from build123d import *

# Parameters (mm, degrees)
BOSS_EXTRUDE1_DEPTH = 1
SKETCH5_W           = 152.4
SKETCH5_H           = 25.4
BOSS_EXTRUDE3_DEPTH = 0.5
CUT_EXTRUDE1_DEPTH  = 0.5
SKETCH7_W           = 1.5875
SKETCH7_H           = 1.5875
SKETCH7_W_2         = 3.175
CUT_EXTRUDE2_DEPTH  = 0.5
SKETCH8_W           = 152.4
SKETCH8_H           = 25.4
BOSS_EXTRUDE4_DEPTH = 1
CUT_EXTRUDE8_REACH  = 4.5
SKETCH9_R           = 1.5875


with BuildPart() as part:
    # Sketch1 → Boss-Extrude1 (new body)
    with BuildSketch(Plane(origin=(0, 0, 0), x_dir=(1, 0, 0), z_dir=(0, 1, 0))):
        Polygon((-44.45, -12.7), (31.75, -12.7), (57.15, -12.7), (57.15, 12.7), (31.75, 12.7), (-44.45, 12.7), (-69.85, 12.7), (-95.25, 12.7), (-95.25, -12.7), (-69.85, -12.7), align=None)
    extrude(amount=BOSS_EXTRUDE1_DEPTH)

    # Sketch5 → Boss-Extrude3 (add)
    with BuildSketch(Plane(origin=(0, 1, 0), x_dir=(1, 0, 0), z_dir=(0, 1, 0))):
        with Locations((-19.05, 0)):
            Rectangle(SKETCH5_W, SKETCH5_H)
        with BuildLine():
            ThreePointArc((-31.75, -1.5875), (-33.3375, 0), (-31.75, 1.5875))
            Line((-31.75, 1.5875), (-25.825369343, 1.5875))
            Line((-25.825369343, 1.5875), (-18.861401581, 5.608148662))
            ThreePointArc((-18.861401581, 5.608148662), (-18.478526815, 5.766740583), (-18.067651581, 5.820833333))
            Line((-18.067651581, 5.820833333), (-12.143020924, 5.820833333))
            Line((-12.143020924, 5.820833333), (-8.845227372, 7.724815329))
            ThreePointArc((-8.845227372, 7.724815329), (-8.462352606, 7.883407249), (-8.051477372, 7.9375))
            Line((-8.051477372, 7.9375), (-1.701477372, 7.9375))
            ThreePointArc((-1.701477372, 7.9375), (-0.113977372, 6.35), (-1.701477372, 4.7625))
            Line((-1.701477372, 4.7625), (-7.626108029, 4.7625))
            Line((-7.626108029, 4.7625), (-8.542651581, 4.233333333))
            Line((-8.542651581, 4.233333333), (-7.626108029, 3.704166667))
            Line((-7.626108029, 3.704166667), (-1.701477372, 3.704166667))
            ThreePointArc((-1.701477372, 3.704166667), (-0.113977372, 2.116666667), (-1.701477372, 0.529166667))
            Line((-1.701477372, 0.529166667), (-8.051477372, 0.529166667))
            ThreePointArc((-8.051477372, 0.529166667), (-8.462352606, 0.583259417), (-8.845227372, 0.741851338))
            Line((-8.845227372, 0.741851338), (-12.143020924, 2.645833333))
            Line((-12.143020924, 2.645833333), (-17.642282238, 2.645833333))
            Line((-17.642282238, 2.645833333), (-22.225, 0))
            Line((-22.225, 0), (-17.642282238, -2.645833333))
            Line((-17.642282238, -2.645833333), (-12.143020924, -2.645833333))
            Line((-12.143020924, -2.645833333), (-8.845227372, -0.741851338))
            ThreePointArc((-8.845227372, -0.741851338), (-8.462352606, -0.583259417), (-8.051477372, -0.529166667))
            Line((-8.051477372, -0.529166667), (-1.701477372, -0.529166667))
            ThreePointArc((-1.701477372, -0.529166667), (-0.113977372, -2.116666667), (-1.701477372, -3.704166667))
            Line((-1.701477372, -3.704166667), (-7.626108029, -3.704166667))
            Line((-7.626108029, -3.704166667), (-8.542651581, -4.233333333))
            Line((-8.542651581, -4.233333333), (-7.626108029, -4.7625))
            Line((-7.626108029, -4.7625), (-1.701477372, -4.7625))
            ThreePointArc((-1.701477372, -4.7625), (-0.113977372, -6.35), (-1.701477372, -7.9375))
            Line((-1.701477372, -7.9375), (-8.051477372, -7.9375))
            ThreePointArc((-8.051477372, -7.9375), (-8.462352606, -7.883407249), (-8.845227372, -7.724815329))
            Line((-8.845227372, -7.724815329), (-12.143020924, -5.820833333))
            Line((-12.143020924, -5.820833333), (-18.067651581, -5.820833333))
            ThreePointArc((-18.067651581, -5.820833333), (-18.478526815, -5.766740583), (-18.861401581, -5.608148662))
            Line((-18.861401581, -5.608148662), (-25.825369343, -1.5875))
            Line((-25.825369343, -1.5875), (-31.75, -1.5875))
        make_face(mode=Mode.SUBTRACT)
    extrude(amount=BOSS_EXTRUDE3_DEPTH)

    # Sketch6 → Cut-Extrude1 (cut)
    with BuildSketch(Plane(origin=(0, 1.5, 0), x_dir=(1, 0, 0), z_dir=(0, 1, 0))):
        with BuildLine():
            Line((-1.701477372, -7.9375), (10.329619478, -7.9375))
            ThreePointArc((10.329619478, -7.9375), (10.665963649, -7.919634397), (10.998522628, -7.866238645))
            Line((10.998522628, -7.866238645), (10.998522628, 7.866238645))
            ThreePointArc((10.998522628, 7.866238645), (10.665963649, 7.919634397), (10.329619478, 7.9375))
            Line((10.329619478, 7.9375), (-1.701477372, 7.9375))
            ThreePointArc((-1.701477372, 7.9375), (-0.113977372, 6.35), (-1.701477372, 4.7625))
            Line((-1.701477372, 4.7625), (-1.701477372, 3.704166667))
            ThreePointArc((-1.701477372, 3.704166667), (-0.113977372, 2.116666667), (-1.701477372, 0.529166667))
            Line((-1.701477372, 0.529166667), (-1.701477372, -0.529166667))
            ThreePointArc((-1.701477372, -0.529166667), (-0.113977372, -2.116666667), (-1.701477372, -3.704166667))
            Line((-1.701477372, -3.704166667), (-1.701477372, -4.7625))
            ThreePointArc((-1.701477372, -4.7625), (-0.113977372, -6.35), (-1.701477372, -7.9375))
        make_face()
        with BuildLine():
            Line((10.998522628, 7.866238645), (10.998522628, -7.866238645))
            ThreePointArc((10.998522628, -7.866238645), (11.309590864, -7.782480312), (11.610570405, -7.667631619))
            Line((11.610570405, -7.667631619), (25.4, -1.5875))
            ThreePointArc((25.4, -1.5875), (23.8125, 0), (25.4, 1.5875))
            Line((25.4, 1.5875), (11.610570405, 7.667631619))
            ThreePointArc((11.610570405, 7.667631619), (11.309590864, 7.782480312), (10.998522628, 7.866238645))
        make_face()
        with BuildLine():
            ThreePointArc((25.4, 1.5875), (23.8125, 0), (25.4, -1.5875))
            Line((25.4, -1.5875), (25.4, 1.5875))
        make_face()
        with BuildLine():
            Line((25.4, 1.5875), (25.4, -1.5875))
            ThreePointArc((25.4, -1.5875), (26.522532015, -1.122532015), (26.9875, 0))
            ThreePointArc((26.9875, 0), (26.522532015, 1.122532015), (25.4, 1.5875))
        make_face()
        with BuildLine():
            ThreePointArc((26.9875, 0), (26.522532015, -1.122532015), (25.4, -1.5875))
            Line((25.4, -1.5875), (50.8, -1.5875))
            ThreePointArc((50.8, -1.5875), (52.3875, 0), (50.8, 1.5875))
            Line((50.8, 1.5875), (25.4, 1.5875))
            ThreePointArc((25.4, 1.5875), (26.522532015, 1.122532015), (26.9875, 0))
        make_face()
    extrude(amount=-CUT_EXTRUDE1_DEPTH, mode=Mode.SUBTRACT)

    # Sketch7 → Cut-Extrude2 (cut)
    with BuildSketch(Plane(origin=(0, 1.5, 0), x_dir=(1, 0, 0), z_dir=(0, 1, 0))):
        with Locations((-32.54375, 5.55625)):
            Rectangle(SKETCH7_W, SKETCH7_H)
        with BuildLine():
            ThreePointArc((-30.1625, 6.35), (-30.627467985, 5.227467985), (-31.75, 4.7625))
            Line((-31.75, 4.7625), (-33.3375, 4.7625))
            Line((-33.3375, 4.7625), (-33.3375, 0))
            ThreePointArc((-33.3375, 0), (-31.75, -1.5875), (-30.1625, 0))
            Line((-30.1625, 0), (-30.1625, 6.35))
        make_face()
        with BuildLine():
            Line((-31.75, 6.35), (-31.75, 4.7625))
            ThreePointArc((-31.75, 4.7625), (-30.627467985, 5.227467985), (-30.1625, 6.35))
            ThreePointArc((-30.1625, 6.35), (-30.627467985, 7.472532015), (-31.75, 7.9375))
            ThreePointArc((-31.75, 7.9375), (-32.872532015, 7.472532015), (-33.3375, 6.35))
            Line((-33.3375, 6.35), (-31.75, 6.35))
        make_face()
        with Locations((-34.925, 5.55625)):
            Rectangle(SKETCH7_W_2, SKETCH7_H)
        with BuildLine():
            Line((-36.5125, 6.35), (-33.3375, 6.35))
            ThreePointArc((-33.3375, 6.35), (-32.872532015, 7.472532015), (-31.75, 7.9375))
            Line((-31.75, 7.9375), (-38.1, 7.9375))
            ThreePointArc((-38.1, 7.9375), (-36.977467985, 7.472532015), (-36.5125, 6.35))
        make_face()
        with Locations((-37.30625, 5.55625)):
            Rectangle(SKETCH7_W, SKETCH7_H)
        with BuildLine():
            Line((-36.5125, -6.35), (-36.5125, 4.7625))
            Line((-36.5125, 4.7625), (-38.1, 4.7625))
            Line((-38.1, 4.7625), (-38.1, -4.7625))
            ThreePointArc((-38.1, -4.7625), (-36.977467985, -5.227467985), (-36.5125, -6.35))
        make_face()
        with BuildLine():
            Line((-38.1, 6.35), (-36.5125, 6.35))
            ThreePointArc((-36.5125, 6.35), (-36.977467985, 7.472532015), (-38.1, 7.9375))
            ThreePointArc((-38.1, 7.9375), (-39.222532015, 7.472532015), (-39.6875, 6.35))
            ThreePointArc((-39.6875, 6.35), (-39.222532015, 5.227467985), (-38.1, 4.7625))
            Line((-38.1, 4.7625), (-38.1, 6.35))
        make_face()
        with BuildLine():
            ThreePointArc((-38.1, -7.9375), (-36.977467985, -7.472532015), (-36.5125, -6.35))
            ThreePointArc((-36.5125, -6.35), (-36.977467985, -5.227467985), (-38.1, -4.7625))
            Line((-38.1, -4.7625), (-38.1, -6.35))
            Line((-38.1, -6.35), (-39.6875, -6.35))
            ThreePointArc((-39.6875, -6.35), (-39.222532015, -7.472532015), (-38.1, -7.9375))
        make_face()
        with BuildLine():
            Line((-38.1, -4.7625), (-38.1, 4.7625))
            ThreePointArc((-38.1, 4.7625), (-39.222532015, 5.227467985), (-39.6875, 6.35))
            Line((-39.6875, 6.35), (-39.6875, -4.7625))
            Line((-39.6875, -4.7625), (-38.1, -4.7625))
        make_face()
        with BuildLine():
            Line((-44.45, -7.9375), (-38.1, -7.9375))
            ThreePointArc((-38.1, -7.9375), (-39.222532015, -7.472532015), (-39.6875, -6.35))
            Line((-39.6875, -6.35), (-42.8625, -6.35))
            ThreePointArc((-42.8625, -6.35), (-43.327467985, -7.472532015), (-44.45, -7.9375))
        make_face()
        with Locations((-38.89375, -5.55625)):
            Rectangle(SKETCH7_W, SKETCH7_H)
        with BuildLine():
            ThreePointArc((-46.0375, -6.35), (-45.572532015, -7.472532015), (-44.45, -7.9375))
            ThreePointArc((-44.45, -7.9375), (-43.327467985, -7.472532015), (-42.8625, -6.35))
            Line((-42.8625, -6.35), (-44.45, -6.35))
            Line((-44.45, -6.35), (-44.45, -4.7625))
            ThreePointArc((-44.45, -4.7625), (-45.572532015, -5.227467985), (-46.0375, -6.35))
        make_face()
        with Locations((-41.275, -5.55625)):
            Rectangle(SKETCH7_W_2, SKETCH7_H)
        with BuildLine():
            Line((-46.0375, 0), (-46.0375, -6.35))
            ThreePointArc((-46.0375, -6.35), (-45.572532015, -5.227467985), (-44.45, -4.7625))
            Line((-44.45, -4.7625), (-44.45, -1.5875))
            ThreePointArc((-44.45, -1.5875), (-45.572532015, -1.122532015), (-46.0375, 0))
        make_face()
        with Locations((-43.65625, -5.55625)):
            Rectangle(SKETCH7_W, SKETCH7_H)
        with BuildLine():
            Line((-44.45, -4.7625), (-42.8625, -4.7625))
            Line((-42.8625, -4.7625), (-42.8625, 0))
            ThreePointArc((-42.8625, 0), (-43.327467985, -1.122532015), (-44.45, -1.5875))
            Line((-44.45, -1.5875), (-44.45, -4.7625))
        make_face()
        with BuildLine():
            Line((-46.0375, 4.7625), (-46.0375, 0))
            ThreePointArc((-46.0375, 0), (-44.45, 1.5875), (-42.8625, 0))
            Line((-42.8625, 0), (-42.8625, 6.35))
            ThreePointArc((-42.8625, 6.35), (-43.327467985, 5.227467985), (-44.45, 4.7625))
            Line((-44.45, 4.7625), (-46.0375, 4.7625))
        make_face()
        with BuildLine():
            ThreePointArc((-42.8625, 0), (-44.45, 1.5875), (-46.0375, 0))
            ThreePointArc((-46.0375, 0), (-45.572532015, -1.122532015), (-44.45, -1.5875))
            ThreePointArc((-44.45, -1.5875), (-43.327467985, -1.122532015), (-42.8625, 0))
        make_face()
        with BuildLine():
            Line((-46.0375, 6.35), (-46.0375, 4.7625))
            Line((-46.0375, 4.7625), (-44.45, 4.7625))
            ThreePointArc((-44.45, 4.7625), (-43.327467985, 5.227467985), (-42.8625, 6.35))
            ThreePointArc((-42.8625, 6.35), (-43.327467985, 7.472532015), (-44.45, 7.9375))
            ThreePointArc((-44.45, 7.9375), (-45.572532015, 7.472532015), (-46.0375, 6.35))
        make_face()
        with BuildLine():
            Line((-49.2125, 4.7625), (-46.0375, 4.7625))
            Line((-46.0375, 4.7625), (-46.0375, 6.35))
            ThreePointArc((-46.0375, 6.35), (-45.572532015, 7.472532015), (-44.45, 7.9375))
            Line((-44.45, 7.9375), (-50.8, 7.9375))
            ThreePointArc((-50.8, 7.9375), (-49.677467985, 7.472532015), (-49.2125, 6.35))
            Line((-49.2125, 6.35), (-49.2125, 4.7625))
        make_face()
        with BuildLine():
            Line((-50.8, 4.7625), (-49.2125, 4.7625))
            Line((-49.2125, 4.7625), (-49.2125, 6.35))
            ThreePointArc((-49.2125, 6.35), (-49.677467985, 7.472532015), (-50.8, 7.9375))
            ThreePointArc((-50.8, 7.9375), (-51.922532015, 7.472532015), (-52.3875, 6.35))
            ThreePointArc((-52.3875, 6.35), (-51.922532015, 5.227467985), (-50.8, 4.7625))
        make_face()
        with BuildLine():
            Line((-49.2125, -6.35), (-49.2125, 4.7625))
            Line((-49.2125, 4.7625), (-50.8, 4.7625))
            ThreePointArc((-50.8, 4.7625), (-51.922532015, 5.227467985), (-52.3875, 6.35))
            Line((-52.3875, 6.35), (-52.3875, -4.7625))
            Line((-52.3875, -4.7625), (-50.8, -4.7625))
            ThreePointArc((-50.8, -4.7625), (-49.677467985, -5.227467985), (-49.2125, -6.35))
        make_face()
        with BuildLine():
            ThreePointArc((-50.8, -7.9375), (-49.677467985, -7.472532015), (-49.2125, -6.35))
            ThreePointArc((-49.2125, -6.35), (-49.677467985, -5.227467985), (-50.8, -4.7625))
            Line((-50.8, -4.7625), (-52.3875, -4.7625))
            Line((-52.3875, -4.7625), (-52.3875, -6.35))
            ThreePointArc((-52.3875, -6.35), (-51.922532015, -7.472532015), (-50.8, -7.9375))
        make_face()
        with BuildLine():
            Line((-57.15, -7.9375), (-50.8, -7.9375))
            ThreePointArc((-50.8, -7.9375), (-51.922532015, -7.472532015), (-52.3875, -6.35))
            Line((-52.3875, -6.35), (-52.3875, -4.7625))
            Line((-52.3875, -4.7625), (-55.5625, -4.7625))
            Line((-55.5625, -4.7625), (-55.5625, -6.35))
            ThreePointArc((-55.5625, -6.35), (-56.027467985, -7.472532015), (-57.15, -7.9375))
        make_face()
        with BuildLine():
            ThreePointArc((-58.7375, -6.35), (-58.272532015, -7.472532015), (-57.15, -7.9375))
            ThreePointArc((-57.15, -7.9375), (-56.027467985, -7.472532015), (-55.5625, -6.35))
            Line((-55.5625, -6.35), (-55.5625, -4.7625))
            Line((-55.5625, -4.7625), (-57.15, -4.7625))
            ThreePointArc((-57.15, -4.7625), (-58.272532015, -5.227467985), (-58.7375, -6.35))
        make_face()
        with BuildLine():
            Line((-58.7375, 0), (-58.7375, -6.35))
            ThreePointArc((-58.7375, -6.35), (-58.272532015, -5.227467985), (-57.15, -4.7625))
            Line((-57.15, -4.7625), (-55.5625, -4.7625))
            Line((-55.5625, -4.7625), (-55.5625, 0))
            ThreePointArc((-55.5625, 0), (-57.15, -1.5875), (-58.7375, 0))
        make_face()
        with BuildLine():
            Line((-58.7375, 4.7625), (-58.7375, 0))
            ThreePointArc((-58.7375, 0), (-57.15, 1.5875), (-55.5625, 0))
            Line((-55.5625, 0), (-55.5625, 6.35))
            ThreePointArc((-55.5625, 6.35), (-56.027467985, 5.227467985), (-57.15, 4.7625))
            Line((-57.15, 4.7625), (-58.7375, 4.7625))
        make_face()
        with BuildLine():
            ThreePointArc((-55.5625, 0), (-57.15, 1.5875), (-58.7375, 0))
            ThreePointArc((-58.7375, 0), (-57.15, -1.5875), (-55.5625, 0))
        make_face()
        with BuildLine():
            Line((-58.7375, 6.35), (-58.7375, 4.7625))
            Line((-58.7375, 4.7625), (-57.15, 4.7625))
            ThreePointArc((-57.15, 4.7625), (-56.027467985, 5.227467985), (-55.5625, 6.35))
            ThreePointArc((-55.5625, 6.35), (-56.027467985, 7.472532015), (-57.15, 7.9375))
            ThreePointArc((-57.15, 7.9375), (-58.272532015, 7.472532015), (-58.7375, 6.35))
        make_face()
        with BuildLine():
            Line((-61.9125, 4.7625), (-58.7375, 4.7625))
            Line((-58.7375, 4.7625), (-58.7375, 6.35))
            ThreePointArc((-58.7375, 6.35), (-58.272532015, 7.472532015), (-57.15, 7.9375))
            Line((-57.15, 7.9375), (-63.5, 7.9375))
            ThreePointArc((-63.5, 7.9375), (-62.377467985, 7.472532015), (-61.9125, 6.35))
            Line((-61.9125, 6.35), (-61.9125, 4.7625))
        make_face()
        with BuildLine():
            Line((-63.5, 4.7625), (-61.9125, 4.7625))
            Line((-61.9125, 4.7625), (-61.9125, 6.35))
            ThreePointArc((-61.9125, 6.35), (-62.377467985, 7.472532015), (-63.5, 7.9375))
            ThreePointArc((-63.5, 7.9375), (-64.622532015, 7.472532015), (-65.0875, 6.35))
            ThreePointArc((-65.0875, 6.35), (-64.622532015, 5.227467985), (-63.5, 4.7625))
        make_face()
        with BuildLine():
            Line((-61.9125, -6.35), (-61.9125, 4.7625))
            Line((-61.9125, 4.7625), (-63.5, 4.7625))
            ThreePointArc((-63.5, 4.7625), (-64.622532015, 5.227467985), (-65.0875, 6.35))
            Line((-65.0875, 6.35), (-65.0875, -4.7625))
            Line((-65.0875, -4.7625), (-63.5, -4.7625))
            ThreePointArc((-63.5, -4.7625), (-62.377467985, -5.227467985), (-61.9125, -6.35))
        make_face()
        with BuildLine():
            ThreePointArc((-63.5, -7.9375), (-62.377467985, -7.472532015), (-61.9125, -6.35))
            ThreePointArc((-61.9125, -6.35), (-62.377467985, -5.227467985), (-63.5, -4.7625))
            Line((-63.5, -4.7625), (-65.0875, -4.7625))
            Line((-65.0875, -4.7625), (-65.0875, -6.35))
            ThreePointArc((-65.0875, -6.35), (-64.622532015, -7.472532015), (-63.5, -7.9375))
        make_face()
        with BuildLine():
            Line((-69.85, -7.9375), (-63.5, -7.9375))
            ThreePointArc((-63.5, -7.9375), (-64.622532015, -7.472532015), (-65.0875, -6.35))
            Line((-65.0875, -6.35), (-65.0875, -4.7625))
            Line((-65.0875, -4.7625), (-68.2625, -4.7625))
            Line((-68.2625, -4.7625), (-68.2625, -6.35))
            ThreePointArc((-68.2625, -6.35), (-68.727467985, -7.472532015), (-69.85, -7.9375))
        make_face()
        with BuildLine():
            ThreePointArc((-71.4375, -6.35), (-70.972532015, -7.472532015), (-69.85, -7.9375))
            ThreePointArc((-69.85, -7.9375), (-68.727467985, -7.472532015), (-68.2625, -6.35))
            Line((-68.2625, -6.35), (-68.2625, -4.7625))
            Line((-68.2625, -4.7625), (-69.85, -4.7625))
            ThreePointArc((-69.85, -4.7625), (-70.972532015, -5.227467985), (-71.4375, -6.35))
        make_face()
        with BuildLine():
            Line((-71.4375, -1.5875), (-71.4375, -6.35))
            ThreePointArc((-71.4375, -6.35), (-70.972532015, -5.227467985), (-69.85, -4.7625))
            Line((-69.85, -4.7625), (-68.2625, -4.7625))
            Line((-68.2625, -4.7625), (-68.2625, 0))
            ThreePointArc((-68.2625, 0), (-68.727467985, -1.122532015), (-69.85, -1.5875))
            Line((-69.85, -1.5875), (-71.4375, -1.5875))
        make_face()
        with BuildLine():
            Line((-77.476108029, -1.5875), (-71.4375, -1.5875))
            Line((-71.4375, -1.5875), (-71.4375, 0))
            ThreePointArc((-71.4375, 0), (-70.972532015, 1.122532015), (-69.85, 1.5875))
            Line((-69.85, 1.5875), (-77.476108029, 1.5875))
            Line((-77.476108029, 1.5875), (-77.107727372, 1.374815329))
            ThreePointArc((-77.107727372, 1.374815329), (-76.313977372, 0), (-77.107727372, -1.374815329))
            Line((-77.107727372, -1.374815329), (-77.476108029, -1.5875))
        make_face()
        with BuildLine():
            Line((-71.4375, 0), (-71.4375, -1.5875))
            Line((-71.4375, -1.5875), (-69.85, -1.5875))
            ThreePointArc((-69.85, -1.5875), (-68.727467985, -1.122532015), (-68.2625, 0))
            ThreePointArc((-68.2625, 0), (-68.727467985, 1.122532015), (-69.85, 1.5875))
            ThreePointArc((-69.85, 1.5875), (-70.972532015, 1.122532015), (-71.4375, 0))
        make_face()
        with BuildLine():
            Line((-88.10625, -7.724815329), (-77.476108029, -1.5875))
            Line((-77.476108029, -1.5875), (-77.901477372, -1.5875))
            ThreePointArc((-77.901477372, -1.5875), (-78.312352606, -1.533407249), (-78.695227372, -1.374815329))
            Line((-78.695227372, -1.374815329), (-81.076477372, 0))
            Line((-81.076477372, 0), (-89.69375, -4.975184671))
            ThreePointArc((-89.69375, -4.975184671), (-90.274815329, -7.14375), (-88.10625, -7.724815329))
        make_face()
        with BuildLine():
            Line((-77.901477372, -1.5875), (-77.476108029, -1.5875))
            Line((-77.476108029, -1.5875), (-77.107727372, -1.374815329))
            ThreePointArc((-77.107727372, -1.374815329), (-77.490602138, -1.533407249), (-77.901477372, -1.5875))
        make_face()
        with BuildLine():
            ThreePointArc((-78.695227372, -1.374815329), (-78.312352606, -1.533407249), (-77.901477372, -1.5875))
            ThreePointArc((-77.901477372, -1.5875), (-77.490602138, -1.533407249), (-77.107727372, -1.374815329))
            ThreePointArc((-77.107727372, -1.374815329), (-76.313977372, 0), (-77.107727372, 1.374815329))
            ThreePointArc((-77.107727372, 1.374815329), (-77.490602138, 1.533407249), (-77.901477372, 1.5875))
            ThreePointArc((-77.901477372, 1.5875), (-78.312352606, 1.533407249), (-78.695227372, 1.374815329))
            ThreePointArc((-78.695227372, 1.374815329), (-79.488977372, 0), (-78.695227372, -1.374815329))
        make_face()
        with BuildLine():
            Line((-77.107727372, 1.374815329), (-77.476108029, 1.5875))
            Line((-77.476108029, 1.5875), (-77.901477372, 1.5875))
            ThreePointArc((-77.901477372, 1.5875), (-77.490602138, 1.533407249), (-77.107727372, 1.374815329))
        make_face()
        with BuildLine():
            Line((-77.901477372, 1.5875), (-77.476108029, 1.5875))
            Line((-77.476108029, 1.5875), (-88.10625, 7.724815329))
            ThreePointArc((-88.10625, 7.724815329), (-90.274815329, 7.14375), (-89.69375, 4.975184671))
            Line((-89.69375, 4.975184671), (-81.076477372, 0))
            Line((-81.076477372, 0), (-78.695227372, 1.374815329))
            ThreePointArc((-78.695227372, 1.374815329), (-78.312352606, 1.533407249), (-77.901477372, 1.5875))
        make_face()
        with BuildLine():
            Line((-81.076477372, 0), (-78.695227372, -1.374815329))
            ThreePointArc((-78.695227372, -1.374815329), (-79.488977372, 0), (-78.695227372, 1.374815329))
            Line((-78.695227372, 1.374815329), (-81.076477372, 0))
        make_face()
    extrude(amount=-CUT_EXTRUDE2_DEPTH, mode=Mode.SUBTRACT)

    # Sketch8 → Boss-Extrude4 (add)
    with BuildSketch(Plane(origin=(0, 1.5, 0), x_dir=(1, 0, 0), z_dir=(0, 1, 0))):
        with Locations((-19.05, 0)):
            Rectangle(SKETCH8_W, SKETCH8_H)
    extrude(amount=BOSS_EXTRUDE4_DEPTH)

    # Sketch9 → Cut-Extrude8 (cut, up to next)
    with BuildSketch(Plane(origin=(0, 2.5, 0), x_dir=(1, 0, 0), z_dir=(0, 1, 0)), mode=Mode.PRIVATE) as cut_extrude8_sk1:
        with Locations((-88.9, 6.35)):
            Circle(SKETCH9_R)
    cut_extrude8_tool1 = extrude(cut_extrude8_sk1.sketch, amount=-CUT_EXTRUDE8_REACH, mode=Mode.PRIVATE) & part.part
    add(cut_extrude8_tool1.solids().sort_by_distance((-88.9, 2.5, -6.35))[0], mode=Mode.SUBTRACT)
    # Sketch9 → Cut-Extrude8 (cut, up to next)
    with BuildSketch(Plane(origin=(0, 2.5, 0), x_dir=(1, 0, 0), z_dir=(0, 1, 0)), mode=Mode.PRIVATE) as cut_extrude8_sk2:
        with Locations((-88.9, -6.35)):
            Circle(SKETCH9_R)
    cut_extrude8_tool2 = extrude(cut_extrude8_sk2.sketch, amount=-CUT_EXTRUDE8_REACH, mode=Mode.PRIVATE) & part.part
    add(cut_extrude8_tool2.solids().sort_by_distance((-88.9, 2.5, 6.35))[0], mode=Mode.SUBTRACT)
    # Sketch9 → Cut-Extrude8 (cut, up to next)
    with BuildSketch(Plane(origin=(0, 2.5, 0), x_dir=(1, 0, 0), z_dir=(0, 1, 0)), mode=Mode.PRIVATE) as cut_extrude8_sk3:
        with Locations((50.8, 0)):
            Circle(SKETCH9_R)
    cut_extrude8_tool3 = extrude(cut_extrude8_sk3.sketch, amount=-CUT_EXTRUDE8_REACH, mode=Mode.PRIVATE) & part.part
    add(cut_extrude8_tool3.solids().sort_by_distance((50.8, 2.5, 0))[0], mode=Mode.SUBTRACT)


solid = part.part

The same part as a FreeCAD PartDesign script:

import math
import FreeCAD as App
import Part
import Sketcher
Q = App.Units.Quantity


def add_polygon(sketch, points):
    """Adds a closed chain of lines whose ends are joined by coincident constraints."""
    first, n = sketch.GeometryCount, len(points)
    for a, b in zip(points, points[1:] + points[:1]):
        sketch.addGeometry(Part.LineSegment(App.Vector(*a, 0), App.Vector(*b, 0)), False)
    for i in range(n):
        sketch.addConstraint(Sketcher.Constraint("Coincident", first + i, 2, first + (i + 1) % n, 1))

doc = App.newDocument("Part")
params = doc.addObject("Spreadsheet::Sheet", "Params")
for row, (alias, value) in enumerate([
    ("sketch1_width", "6 in"),
    ("sketch1_height", "1 in"),
    ("pad1_length", "1 mm"),
    ("sketch2_width", "6 in"),
    ("sketch2_height", "1 in"),
    ("sketch2_radius", "0.0625 in"),
    ("sketch2_width2", "0.25 in"),
    ("pad2_length", "0.5 mm"),
    ("sketch3_width", "1 in"),
    ("sketch3_radius", "0.0625 in"),
    ("pocket1_length", "0.5 mm"),
    ("sketch4_radius", "0.0625 in"),
    ("sketch4_width", "0.25 in"),
    ("pocket2_length", "0.5 mm"),
    ("sketch5_width", "6 in"),
    ("sketch5_height", "1 in"),
    ("pad3_length", "1 mm"),
    ("sketch6_diameter", "0.125 in"),
    ("sketch7_diameter", "0.125 in"),
    ("sketch8_diameter", "0.125 in"),
], start=1):
    params.set(f"A{row}", alias)
    params.set(f"B{row}", "=" + value)
    params.setAlias(f"B{row}", alias)

body = doc.addObject("PartDesign::Body", "Body")

sketch1 = body.newObject("Sketcher::SketchObject", "Sketch")
sketch1.AttachmentSupport = (doc.getObject("XZ_Plane"), [""])
sketch1.MapMode = "FlatFace"
add_polygon(sketch1, [(57.15, 12.7), (57.15, -12.7), (-95.25, -12.7), (-95.25, 12.7)])
sketch1.addConstraint([
    Sketcher.Constraint("Vertical", 0),
    Sketcher.Constraint("Horizontal", 1),
    Sketcher.Constraint("Vertical", 2),
    Sketcher.Constraint("Horizontal", 3),
    Sketcher.Constraint("DistanceX", 1, 2, 1, 1, Q("6 in")),
    Sketcher.Constraint("DistanceY", 0, 2, 0, 1, Q("1 in")),
    Sketcher.Constraint("DistanceY", 0, 2, -1, 1, Q("0.5 in")),
    Sketcher.Constraint("DistanceX", -1, 1, 0, 2, Q("2.25 in")),
])
sketch1.setExpression("Constraints[8]", "Params.sketch1_width")
sketch1.setExpression("Constraints[9]", "Params.sketch1_height")
pad1 = body.newObject("PartDesign::Pad", "Pad")
pad1.Profile = sketch1
pad1.setExpression("Length", "Params.pad1_length")
pad1.Reversed = True

sketch2 = body.newObject("Sketcher::SketchObject", "Sketch001")
sketch2.AttachmentSupport = (doc.getObject("XZ_Plane"), [""])
sketch2.MapMode = "FlatFace"
sketch2.AttachmentOffset = App.Placement(App.Vector(0, 0, -1), App.Rotation())
add_polygon(sketch2, [(-95.25, -12.7), (-95.25, 12.7), (57.15, 12.7), (57.15, -12.7)])
sketch2.addGeometry(Part.LineSegment(App.Vector(-25.825369, 1.5875, 0), App.Vector(-31.75, 1.5875, 0)), False)
sketch2.addGeometry(Part.ArcOfCircle(Part.Circle(App.Vector(-31.75, 0, 0), App.Vector(0, 0, 1), 1.5875), math.radians(90), math.radians(270)), False)
sketch2.addGeometry(Part.LineSegment(App.Vector(-31.75, -1.5875, 0), App.Vector(-25.825369, -1.5875, 0)), False)
sketch2.addGeometry(Part.LineSegment(App.Vector(-25.825369, -1.5875, 0), App.Vector(-18.861402, -5.608149, 0)), False)
sketch2.addGeometry(Part.ArcOfCircle(Part.Circle(App.Vector(-18.067652, -4.233333, 0), App.Vector(0, 0, 1), 1.5875), math.radians(-120), math.radians(-90)), False)
sketch2.addGeometry(Part.LineSegment(App.Vector(-18.067652, -5.820833, 0), App.Vector(-12.143021, -5.820833, 0)), False)
sketch2.addGeometry(Part.LineSegment(App.Vector(-12.143021, -5.820833, 0), App.Vector(-8.845227, -7.724815, 0)), False)
sketch2.addGeometry(Part.ArcOfCircle(Part.Circle(App.Vector(-8.051477, -6.35, 0), App.Vector(0, 0, 1), 1.5875), math.radians(-120), math.radians(-90)), False)
sketch2.addGeometry(Part.LineSegment(App.Vector(-8.051477, -7.9375, 0), App.Vector(-1.701477, -7.9375, 0)), False)
sketch2.addGeometry(Part.ArcOfCircle(Part.Circle(App.Vector(-1.701477, -6.35, 0), App.Vector(0, 0, 1), 1.5875), math.radians(-90), math.radians(90)), False)
sketch2.addGeometry(Part.LineSegment(App.Vector(-1.701477, -4.7625, 0), App.Vector(-7.626108, -4.7625, 0)), False)
sketch2.addGeometry(Part.LineSegment(App.Vector(-7.626108, -4.7625, 0), App.Vector(-8.542652, -4.233333, 0)), False)
sketch2.addGeometry(Part.LineSegment(App.Vector(-8.542652, -4.233333, 0), App.Vector(-7.626108, -3.704167, 0)), False)
sketch2.addGeometry(Part.LineSegment(App.Vector(-7.626108, -3.704167, 0), App.Vector(-1.701477, -3.704167, 0)), False)
sketch2.addGeometry(Part.ArcOfCircle(Part.Circle(App.Vector(-1.701477, -2.116667, 0), App.Vector(0, 0, 1), 1.5875), math.radians(-90), math.radians(90)), False)
sketch2.addGeometry(Part.LineSegment(App.Vector(-1.701477, -0.529167, 0), App.Vector(-8.051477, -0.529167, 0)), False)
sketch2.addGeometry(Part.ArcOfCircle(Part.Circle(App.Vector(-8.051477, -2.116667, 0), App.Vector(0, 0, 1), 1.5875), math.radians(90), math.radians(120)), False)
sketch2.addGeometry(Part.LineSegment(App.Vector(-8.845227, -0.741851, 0), App.Vector(-12.143021, -2.645833, 0)), False)
sketch2.addGeometry(Part.LineSegment(App.Vector(-12.143021, -2.645833, 0), App.Vector(-17.642282, -2.645833, 0)), False)
sketch2.addGeometry(Part.LineSegment(App.Vector(-17.642282, -2.645833, 0), App.Vector(-22.225, 0, 0)), False)
sketch2.addGeometry(Part.LineSegment(App.Vector(-22.225, 0, 0), App.Vector(-17.642282, 2.645833, 0)), False)
sketch2.addGeometry(Part.LineSegment(App.Vector(-17.642282, 2.645833, 0), App.Vector(-12.143021, 2.645833, 0)), False)
sketch2.addGeometry(Part.LineSegment(App.Vector(-12.143021, 2.645833, 0), App.Vector(-8.845227, 0.741851, 0)), False)
sketch2.addGeometry(Part.ArcOfCircle(Part.Circle(App.Vector(-8.051477, 2.116667, 0), App.Vector(0, 0, 1), 1.5875), math.radians(-120), math.radians(-90)), False)
sketch2.addGeometry(Part.LineSegment(App.Vector(-8.051477, 0.529167, 0), App.Vector(-1.701477, 0.529167, 0)), False)
sketch2.addGeometry(Part.ArcOfCircle(Part.Circle(App.Vector(-1.701477, 2.116667, 0), App.Vector(0, 0, 1), 1.5875), math.radians(-90), math.radians(90)), False)
sketch2.addGeometry(Part.LineSegment(App.Vector(-1.701477, 3.704167, 0), App.Vector(-7.626108, 3.704167, 0)), False)
sketch2.addGeometry(Part.LineSegment(App.Vector(-7.626108, 3.704167, 0), App.Vector(-8.542652, 4.233333, 0)), False)
sketch2.addGeometry(Part.LineSegment(App.Vector(-8.542652, 4.233333, 0), App.Vector(-7.626108, 4.7625, 0)), False)
sketch2.addGeometry(Part.LineSegment(App.Vector(-7.626108, 4.7625, 0), App.Vector(-1.701477, 4.7625, 0)), False)
sketch2.addGeometry(Part.ArcOfCircle(Part.Circle(App.Vector(-1.701477, 6.35, 0), App.Vector(0, 0, 1), 1.5875), math.radians(-90), math.radians(90)), False)
sketch2.addGeometry(Part.LineSegment(App.Vector(-1.701477, 7.9375, 0), App.Vector(-8.051477, 7.9375, 0)), False)
sketch2.addGeometry(Part.ArcOfCircle(Part.Circle(App.Vector(-8.051477, 6.35, 0), App.Vector(0, 0, 1), 1.5875), math.radians(90), math.radians(120)), False)
sketch2.addGeometry(Part.LineSegment(App.Vector(-8.845227, 7.724815, 0), App.Vector(-12.143021, 5.820833, 0)), False)
sketch2.addGeometry(Part.LineSegment(App.Vector(-12.143021, 5.820833, 0), App.Vector(-18.067652, 5.820833, 0)), False)
sketch2.addGeometry(Part.ArcOfCircle(Part.Circle(App.Vector(-18.067652, 4.233333, 0), App.Vector(0, 0, 1), 1.5875), math.radians(90), math.radians(120)), False)
sketch2.addGeometry(Part.LineSegment(App.Vector(-18.861402, 5.608149, 0), App.Vector(-25.825369, 1.5875, 0)), False)
sketch2.addConstraint([
    Sketcher.Constraint("Tangent", 4, 2, 5, 1),
    Sketcher.Constraint("Tangent", 5, 2, 6, 1),
    Sketcher.Constraint("Coincident", 6, 2, 7, 1),
    Sketcher.Constraint("Tangent", 7, 2, 8, 1),
    Sketcher.Constraint("Tangent", 8, 2, 9, 1),
    Sketcher.Constraint("Coincident", 9, 2, 10, 1),
    Sketcher.Constraint("Tangent", 10, 2, 11, 1),
    Sketcher.Constraint("Tangent", 11, 2, 12, 1),
    Sketcher.Constraint("Tangent", 12, 2, 13, 1),
    Sketcher.Constraint("Tangent", 13, 2, 14, 1),
    Sketcher.Constraint("Coincident", 14, 2, 15, 1),
    Sketcher.Constraint("Coincident", 15, 2, 16, 1),
    Sketcher.Constraint("Coincident", 16, 2, 17, 1),
    Sketcher.Constraint("Tangent", 17, 2, 18, 1),
    Sketcher.Constraint("Tangent", 18, 2, 19, 1),
    Sketcher.Constraint("Tangent", 19, 2, 20, 1),
    Sketcher.Constraint("Tangent", 20, 2, 21, 1),
    Sketcher.Constraint("Coincident", 21, 2, 22, 1),
    Sketcher.Constraint("Coincident", 22, 2, 23, 1),
    Sketcher.Constraint("Coincident", 23, 2, 24, 1),
    Sketcher.Constraint("Coincident", 24, 2, 25, 1),
    Sketcher.Constraint("Coincident", 25, 2, 26, 1),
    Sketcher.Constraint("Tangent", 26, 2, 27, 1),
    Sketcher.Constraint("Tangent", 27, 2, 28, 1),
    Sketcher.Constraint("Tangent", 28, 2, 29, 1),
    Sketcher.Constraint("Tangent", 29, 2, 30, 1),
    Sketcher.Constraint("Coincident", 30, 2, 31, 1),
    Sketcher.Constraint("Coincident", 31, 2, 32, 1),
    Sketcher.Constraint("Coincident", 32, 2, 33, 1),
    Sketcher.Constraint("Tangent", 33, 2, 34, 1),
    Sketcher.Constraint("Tangent", 34, 2, 35, 1),
    Sketcher.Constraint("Tangent", 35, 2, 36, 1),
    Sketcher.Constraint("Tangent", 36, 2, 37, 1),
    Sketcher.Constraint("Coincident", 37, 2, 38, 1),
    Sketcher.Constraint("Tangent", 38, 2, 39, 1),
    Sketcher.Constraint("Tangent", 39, 2, 40, 1),
    Sketcher.Constraint("Coincident", 40, 2, 4, 1),
    Sketcher.Constraint("Vertical", 0),
    Sketcher.Constraint("Horizontal", 1),
    Sketcher.Constraint("Vertical", 2),
    Sketcher.Constraint("Horizontal", 3),
    Sketcher.Constraint("Horizontal", 4),
    Sketcher.Constraint("Horizontal", 6),
    Sketcher.Constraint("Horizontal", 9),
    Sketcher.Constraint("Horizontal", 12),
    Sketcher.Constraint("Horizontal", 14),
    Sketcher.Constraint("Horizontal", 17),
    Sketcher.Constraint("Horizontal", 19),
    Sketcher.Constraint("Horizontal", 22),
    Sketcher.Constraint("Horizontal", 25),
    Sketcher.Constraint("Horizontal", 28),
    Sketcher.Constraint("Horizontal", 30),
    Sketcher.Constraint("Horizontal", 33),
    Sketcher.Constraint("Horizontal", 35),
    Sketcher.Constraint("Horizontal", 38),
    Sketcher.Constraint("Equal", 5, 8),
    Sketcher.Constraint("Equal", 8, 11),
    Sketcher.Constraint("Equal", 11, 13),
    Sketcher.Constraint("Equal", 13, 18),
    Sketcher.Constraint("Equal", 18, 20),
    Sketcher.Constraint("Equal", 20, 27),
    Sketcher.Constraint("Equal", 27, 29),
    Sketcher.Constraint("Equal", 29, 34),
    Sketcher.Constraint("Equal", 34, 36),
    Sketcher.Constraint("Equal", 36, 39),
    Sketcher.Constraint("Symmetric", 20, 3, 27, 3, -1),
    Sketcher.Constraint("Symmetric", 13, 3, 34, 3, -1),
    Sketcher.Constraint("Symmetric", 8, 3, 39, 3, -1),
    Sketcher.Constraint("Symmetric", 22, 2, 24, 2, -1),
    Sketcher.Constraint("Symmetric", 15, 2, 31, 2, -1),
    Sketcher.Constraint("Symmetric", 10, 2, 36, 2, -1),
    Sketcher.Constraint("Symmetric", 6, 2, 40, 2, -1),
    Sketcher.Constraint("PointOnObject", 23, 2, -1),
    Sketcher.Constraint("Parallel", 7, 10),
    Sketcher.Constraint("Parallel", 10, 15),
    Sketcher.Constraint("Parallel", 16, 21),
    Sketcher.Constraint("Parallel", 15, 23),
    Sketcher.Constraint("Parallel", 21, 24),
    Sketcher.Constraint("Parallel", 23, 26),
    Sketcher.Constraint("Parallel", 26, 31),
    Sketcher.Constraint("Parallel", 24, 32),
    Sketcher.Constraint("Horizontal", 8, 3, 15, 2),
    Sketcher.Constraint("Vertical", 13, 3, 18, 3),
    Sketcher.Constraint("Vertical", 11, 3, 20, 3),
    Sketcher.Constraint("Vertical", 18, 3, 29, 3),
    Sketcher.Constraint("Vertical", 14, 2, 16, 2),
    Sketcher.Constraint("Vertical", 9, 2, 21, 2),
    Sketcher.Constraint("Equal", 6, 9),
    Sketcher.Constraint("Equal", 9, 14),
    Sketcher.Constraint("DistanceX", 1, 1, 1, 2, Q("6 in")),
    Sketcher.Constraint("DistanceY", 0, 1, 0, 2, Q("1 in")),
    Sketcher.Constraint("Angle", 7, Q("-30 deg")),
    Sketcher.Constraint("Radius", 5, Q("0.0625 in")),
    Sketcher.Constraint("DistanceX", 12, 1, 12, 2, Q("0.25 in")),
    Sketcher.Constraint("DistanceY", -1, 1, 0, 2, Q("0.5 in")),
    Sketcher.Constraint("DistanceY", 13, 3, 34, 3, Q("0.5 in")),
    Sketcher.Constraint("DistanceX", 0, 2, 5, 3, Q("2.5 in")),
    Sketcher.Constraint("DistanceX", 5, 3, -1, 1, Q("1.25 in")),
    Sketcher.Constraint("DistanceY", 8, 3, 27, 3, Q("0.25 in")),
    Sketcher.Constraint("DistanceX", 23, 2, -1, 1, Q("0.875 in")),
    Sketcher.Constraint("DistanceX", 4, 2, 4, 1, Q("5.924631 mm")),
])
sketch2.setExpression("Constraints[93]", "Params.sketch2_width")
sketch2.setExpression("Constraints[94]", "Params.sketch2_height")
sketch2.setExpression("Constraints[96]", "Params.sketch2_radius")
sketch2.setExpression("Constraints[97]", "Params.sketch2_width2")
pad2 = body.newObject("PartDesign::Pad", "Pad001")
pad2.Profile = sketch2
pad2.setExpression("Length", "Params.pad2_length")
pad2.Reversed = True

sketch3 = body.newObject("Sketcher::SketchObject", "Sketch002")
sketch3.AttachmentSupport = (doc.getObject("XZ_Plane"), [""])
sketch3.MapMode = "FlatFace"
sketch3.AttachmentOffset = App.Placement(App.Vector(0, 0, -1.5), App.Rotation())
sketch3.addGeometry([
    Part.LineSegment(App.Vector(-1.701477, 3.704167, 0), App.Vector(-1.701477, 4.7625, 0)),
    Part.ArcOfCircle(Part.Circle(App.Vector(-1.701477, 6.35, 0), App.Vector(0, 0, 1), 1.5875), math.radians(-90), math.radians(90)),
    Part.LineSegment(App.Vector(-1.701477, 7.9375, 0), App.Vector(10.329619, 7.9375, 0)),
    Part.ArcOfCircle(Part.Circle(App.Vector(10.329619, 4.7625, 0), App.Vector(0, 0, 1), 3.175), math.radians(77.837903), math.radians(90)),
    Part.ArcOfCircle(Part.Circle(App.Vector(10.329619, 4.7625, 0), App.Vector(0, 0, 1), 3.175), math.radians(66.206023), math.radians(77.837903)),
    Part.LineSegment(App.Vector(11.61057, 7.667632, 0), App.Vector(25.4, 1.5875, 0)),
    Part.LineSegment(App.Vector(25.4, 1.5875, 0), App.Vector(50.8, 1.5875, 0)),
    Part.ArcOfCircle(Part.Circle(App.Vector(50.8, 0, 0), App.Vector(0, 0, 1), 1.5875), math.radians(-90), math.radians(90)),
    Part.LineSegment(App.Vector(50.8, -1.5875, 0), App.Vector(25.4, -1.5875, 0)),
    Part.LineSegment(App.Vector(25.4, -1.5875, 0), App.Vector(11.61057, -7.667632, 0)),
    Part.ArcOfCircle(Part.Circle(App.Vector(10.329619, -4.7625, 0), App.Vector(0, 0, 1), 3.175), math.radians(-77.837903), math.radians(-66.206023)),
    Part.ArcOfCircle(Part.Circle(App.Vector(10.329619, -4.7625, 0), App.Vector(0, 0, 1), 3.175), math.radians(-90), math.radians(-77.837903)),
    Part.LineSegment(App.Vector(10.329619, -7.9375, 0), App.Vector(-1.701477, -7.9375, 0)),
    Part.ArcOfCircle(Part.Circle(App.Vector(-1.701477, -6.35, 0), App.Vector(0, 0, 1), 1.5875), math.radians(-90), math.radians(90)),
    Part.LineSegment(App.Vector(-1.701477, -4.7625, 0), App.Vector(-1.701477, -3.704167, 0)),
    Part.ArcOfCircle(Part.Circle(App.Vector(-1.701477, -2.116667, 0), App.Vector(0, 0, 1), 1.5875), math.radians(-90), math.radians(90)),
    Part.LineSegment(App.Vector(-1.701477, -0.529167, 0), App.Vector(-1.701477, 0.529167, 0)),
    Part.ArcOfCircle(Part.Circle(App.Vector(-1.701477, 2.116667, 0), App.Vector(0, 0, 1), 1.5875), math.radians(-90), math.radians(90)),
], False)
sketch3.addConstraint([
    Sketcher.Constraint("Coincident", 0, 2, 1, 1),
    Sketcher.Constraint("Tangent", 1, 2, 2, 1),
    Sketcher.Constraint("Tangent", 2, 2, 3, 2),
    Sketcher.Constraint("Tangent", 3, 1, 4, 2),
    Sketcher.Constraint("Tangent", 4, 1, 5, 1),
    Sketcher.Constraint("Coincident", 5, 2, 6, 1),
    Sketcher.Constraint("Tangent", 6, 2, 7, 2),
    Sketcher.Constraint("Tangent", 7, 1, 8, 1),
    Sketcher.Constraint("Coincident", 8, 2, 9, 1),
    Sketcher.Constraint("Tangent", 9, 2, 10, 2),
    Sketcher.Constraint("Tangent", 10, 1, 11, 2),
    Sketcher.Constraint("Tangent", 11, 1, 12, 1),
    Sketcher.Constraint("Tangent", 12, 2, 13, 1),
    Sketcher.Constraint("Coincident", 13, 2, 14, 1),
    Sketcher.Constraint("Coincident", 14, 2, 15, 1),
    Sketcher.Constraint("Coincident", 15, 2, 16, 1),
    Sketcher.Constraint("Coincident", 16, 2, 17, 1),
    Sketcher.Constraint("Coincident", 17, 2, 0, 1),
    Sketcher.Constraint("Vertical", 0),
    Sketcher.Constraint("Horizontal", 2),
    Sketcher.Constraint("Horizontal", 6),
    Sketcher.Constraint("Horizontal", 8),
    Sketcher.Constraint("Horizontal", 12),
    Sketcher.Constraint("Vertical", 14),
    Sketcher.Constraint("Vertical", 16),
    Sketcher.Constraint("Equal", 3, 4),
    Sketcher.Constraint("Equal", 1, 7),
    Sketcher.Constraint("Equal", 4, 10),
    Sketcher.Constraint("Equal", 10, 11),
    Sketcher.Constraint("Equal", 7, 13),
    Sketcher.Constraint("Equal", 13, 15),
    Sketcher.Constraint("Equal", 15, 17),
    Sketcher.Constraint("Symmetric", 3, 3, 10, 3, -1),
    Sketcher.Constraint("Symmetric", 15, 3, 17, 3, -1),
    Sketcher.Constraint("Symmetric", 5, 2, 8, 2, -1),
    Sketcher.Constraint("Horizontal", 4, 3, 0, 2),
    Sketcher.Constraint("Vertical", 1, 3, 13, 3),
    Sketcher.Constraint("Vertical", 13, 3, 15, 3),
    Sketcher.Constraint("Vertical", 17, 3, 0, 2),
    Sketcher.Constraint("Vertical", 3, 1, 10, 1),
    Sketcher.Constraint("Vertical", 12, 2, 13, 2),
    Sketcher.Constraint("Vertical", 14, 2, 15, 2),
    Sketcher.Constraint("Equal", 14, 16),
    Sketcher.Constraint("DistanceX", 6, 1, 6, 2, Q("1 in")),
    Sketcher.Constraint("DistanceX", -1, 1, 7, 3, Q("2 in")),
    Sketcher.Constraint("Radius", 1, Q("0.0625 in")),
    Sketcher.Constraint("DistanceY", 13, 3, 1, 3, Q("0.5 in")),
    Sketcher.Constraint("Distance", 5, Q("15.070381 mm")),
    Sketcher.Constraint("DistanceX", 2, 1, 2, 2, Q("12.031097 mm")),
    Sketcher.Constraint("DistanceY", -1, 1, 3, 1, Q("7.866239 mm")),
])
sketch3.setExpression("Constraints[43]", "Params.sketch3_width")
sketch3.setExpression("Constraints[45]", "Params.sketch3_radius")
pocket1 = body.newObject("PartDesign::Pocket", "Pocket")
pocket1.Profile = sketch3
pocket1.setExpression("Length", "Params.pocket1_length")
pocket1.Reversed = True

sketch4 = body.newObject("Sketcher::SketchObject", "Sketch003")
sketch4.AttachmentSupport = (doc.getObject("XZ_Plane"), [""])
sketch4.MapMode = "FlatFace"
sketch4.AttachmentOffset = App.Placement(App.Vector(0, 0, -1.5), App.Rotation())
sketch4.addGeometry([
    Part.LineSegment(App.Vector(-89.69375, -4.975185, 0), App.Vector(-81.076477, 0, 0)),
    Part.LineSegment(App.Vector(-81.076477, 0, 0), App.Vector(-89.69375, 4.975185, 0)),
    Part.ArcOfCircle(Part.Circle(App.Vector(-88.9, 6.35, 0), App.Vector(0, 0, 1), 1.5875), math.radians(60), math.radians(240)),
    Part.LineSegment(App.Vector(-88.10625, 7.724815, 0), App.Vector(-77.476108, 1.5875, 0)),
    Part.LineSegment(App.Vector(-77.476108, 1.5875, 0), App.Vector(-71.4375, 1.5875, 0)),
    Part.LineSegment(App.Vector(-71.4375, 1.5875, 0), App.Vector(-71.4375, 6.35, 0)),
    Part.ArcOfCircle(Part.Circle(App.Vector(-69.85, 6.35, 0), App.Vector(0, 0, 1), 1.5875), math.radians(90), math.radians(180)),
    Part.LineSegment(App.Vector(-69.85, 7.9375, 0), App.Vector(-63.5, 7.9375, 0)),
    Part.ArcOfCircle(Part.Circle(App.Vector(-63.5, 6.35, 0), App.Vector(0, 0, 1), 1.5875), math.radians(0), math.radians(90)),
    Part.LineSegment(App.Vector(-61.9125, 6.35, 0), App.Vector(-61.9125, -4.7625, 0)),
    Part.LineSegment(App.Vector(-61.9125, -4.7625, 0), App.Vector(-58.7375, -4.7625, 0)),
    Part.LineSegment(App.Vector(-58.7375, -4.7625, 0), App.Vector(-58.7375, 6.35, 0)),
    Part.ArcOfCircle(Part.Circle(App.Vector(-57.15, 6.35, 0), App.Vector(0, 0, 1), 1.5875), math.radians(90), math.radians(180)),
    Part.LineSegment(App.Vector(-57.15, 7.9375, 0), App.Vector(-50.8, 7.9375, 0)),
    Part.ArcOfCircle(Part.Circle(App.Vector(-50.8, 6.35, 0), App.Vector(0, 0, 1), 1.5875), math.radians(0), math.radians(90)),
    Part.LineSegment(App.Vector(-49.2125, 6.35, 0), App.Vector(-49.2125, -4.7625, 0)),
    Part.LineSegment(App.Vector(-49.2125, -4.7625, 0), App.Vector(-46.0375, -4.7625, 0)),
    Part.LineSegment(App.Vector(-46.0375, -4.7625, 0), App.Vector(-46.0375, 6.35, 0)),
    Part.ArcOfCircle(Part.Circle(App.Vector(-44.45, 6.35, 0), App.Vector(0, 0, 1), 1.5875), math.radians(90), math.radians(180)),
    Part.LineSegment(App.Vector(-44.45, 7.9375, 0), App.Vector(-38.1, 7.9375, 0)),
    Part.ArcOfCircle(Part.Circle(App.Vector(-38.1, 6.35, 0), App.Vector(0, 0, 1), 1.5875), math.radians(0), math.radians(90)),
    Part.LineSegment(App.Vector(-36.5125, 6.35, 0), App.Vector(-36.5125, -4.7625, 0)),
    Part.LineSegment(App.Vector(-36.5125, -4.7625, 0), App.Vector(-33.3375, -4.7625, 0)),
    Part.LineSegment(App.Vector(-33.3375, -4.7625, 0), App.Vector(-33.3375, 0, 0)),
    Part.ArcOfCircle(Part.Circle(App.Vector(-31.75, 0, 0), App.Vector(0, 0, 1), 1.5875), math.radians(0), math.radians(180)),
    Part.LineSegment(App.Vector(-30.1625, 0, 0), App.Vector(-30.1625, -6.35, 0)),
    Part.ArcOfCircle(Part.Circle(App.Vector(-31.75, -6.35, 0), App.Vector(0, 0, 1), 1.5875), math.radians(-90), math.radians(0)),
    Part.LineSegment(App.Vector(-31.75, -7.9375, 0), App.Vector(-38.1, -7.9375, 0)),
    Part.ArcOfCircle(Part.Circle(App.Vector(-38.1, -6.35, 0), App.Vector(0, 0, 1), 1.5875), math.radians(180), math.radians(270)),
    Part.LineSegment(App.Vector(-39.6875, -6.35, 0), App.Vector(-39.6875, 4.7625, 0)),
    Part.LineSegment(App.Vector(-39.6875, 4.7625, 0), App.Vector(-42.8625, 4.7625, 0)),
    Part.LineSegment(App.Vector(-42.8625, 4.7625, 0), App.Vector(-42.8625, -6.35, 0)),
    Part.ArcOfCircle(Part.Circle(App.Vector(-44.45, -6.35, 0), App.Vector(0, 0, 1), 1.5875), math.radians(-90), math.radians(0)),
    Part.LineSegment(App.Vector(-44.45, -7.9375, 0), App.Vector(-50.8, -7.9375, 0)),
    Part.ArcOfCircle(Part.Circle(App.Vector(-50.8, -6.35, 0), App.Vector(0, 0, 1), 1.5875), math.radians(180), math.radians(270)),
    Part.LineSegment(App.Vector(-52.3875, -6.35, 0), App.Vector(-52.3875, 4.7625, 0)),
    Part.LineSegment(App.Vector(-52.3875, 4.7625, 0), App.Vector(-55.5625, 4.7625, 0)),
    Part.LineSegment(App.Vector(-55.5625, 4.7625, 0), App.Vector(-55.5625, -6.35, 0)),
    Part.ArcOfCircle(Part.Circle(App.Vector(-57.15, -6.35, 0), App.Vector(0, 0, 1), 1.5875), math.radians(-90), math.radians(0)),
    Part.LineSegment(App.Vector(-57.15, -7.9375, 0), App.Vector(-63.5, -7.9375, 0)),
    Part.ArcOfCircle(Part.Circle(App.Vector(-63.5, -6.35, 0), App.Vector(0, 0, 1), 1.5875), math.radians(180), math.radians(270)),
    Part.LineSegment(App.Vector(-65.0875, -6.35, 0), App.Vector(-65.0875, 4.7625, 0)),
    Part.LineSegment(App.Vector(-65.0875, 4.7625, 0), App.Vector(-68.2625, 4.7625, 0)),
    Part.LineSegment(App.Vector(-68.2625, 4.7625, 0), App.Vector(-68.2625, 0, 0)),
    Part.ArcOfCircle(Part.Circle(App.Vector(-69.85, 0, 0), App.Vector(0, 0, 1), 1.5875), math.radians(-90), math.radians(0)),
    Part.LineSegment(App.Vector(-69.85, -1.5875, 0), App.Vector(-77.476108, -1.5875, 0)),
    Part.LineSegment(App.Vector(-77.476108, -1.5875, 0), App.Vector(-88.10625, -7.724815, 0)),
    Part.ArcOfCircle(Part.Circle(App.Vector(-88.9, -6.35, 0), App.Vector(0, 0, 1), 1.5875), math.radians(120), math.radians(300)),
], False)
sketch4.addConstraint([
    Sketcher.Constraint("Coincident", 0, 2, 1, 1),
    Sketcher.Constraint("Tangent", 1, 2, 2, 2),
    Sketcher.Constraint("Tangent", 2, 1, 3, 1),
    Sketcher.Constraint("Coincident", 3, 2, 4, 1),
    Sketcher.Constraint("Coincident", 4, 2, 5, 1),
    Sketcher.Constraint("Tangent", 5, 2, 6, 2),
    Sketcher.Constraint("Tangent", 6, 1, 7, 1),
    Sketcher.Constraint("Tangent", 7, 2, 8, 2),
    Sketcher.Constraint("Tangent", 8, 1, 9, 1),
    Sketcher.Constraint("Coincident", 9, 2, 10, 1),
    Sketcher.Constraint("Coincident", 10, 2, 11, 1),
    Sketcher.Constraint("Tangent", 11, 2, 12, 2),
    Sketcher.Constraint("Tangent", 12, 1, 13, 1),
    Sketcher.Constraint("Tangent", 13, 2, 14, 2),
    Sketcher.Constraint("Tangent", 14, 1, 15, 1),
    Sketcher.Constraint("Coincident", 15, 2, 16, 1),
    Sketcher.Constraint("Coincident", 16, 2, 17, 1),
    Sketcher.Constraint("Tangent", 17, 2, 18, 2),
    Sketcher.Constraint("Tangent", 18, 1, 19, 1),
    Sketcher.Constraint("Tangent", 19, 2, 20, 2),
    Sketcher.Constraint("Tangent", 20, 1, 21, 1),
    Sketcher.Constraint("Coincident", 21, 2, 22, 1),
    Sketcher.Constraint("Coincident", 22, 2, 23, 1),
    Sketcher.Constraint("Tangent", 23, 2, 24, 2),
    Sketcher.Constraint("Tangent", 24, 1, 25, 1),
    Sketcher.Constraint("Tangent", 25, 2, 26, 2),
    Sketcher.Constraint("Tangent", 26, 1, 27, 1),
    Sketcher.Constraint("Tangent", 27, 2, 28, 2),
    Sketcher.Constraint("Tangent", 28, 1, 29, 1),
    Sketcher.Constraint("Coincident", 29, 2, 30, 1),
    Sketcher.Constraint("Coincident", 30, 2, 31, 1),
    Sketcher.Constraint("Tangent", 31, 2, 32, 2),
    Sketcher.Constraint("Tangent", 32, 1, 33, 1),
    Sketcher.Constraint("Tangent", 33, 2, 34, 2),
    Sketcher.Constraint("Tangent", 34, 1, 35, 1),
    Sketcher.Constraint("Coincident", 35, 2, 36, 1),
    Sketcher.Constraint("Coincident", 36, 2, 37, 1),
    Sketcher.Constraint("Tangent", 37, 2, 38, 2),
    Sketcher.Constraint("Tangent", 38, 1, 39, 1),
    Sketcher.Constraint("Tangent", 39, 2, 40, 2),
    Sketcher.Constraint("Tangent", 40, 1, 41, 1),
    Sketcher.Constraint("Coincident", 41, 2, 42, 1),
    Sketcher.Constraint("Coincident", 42, 2, 43, 1),
    Sketcher.Constraint("Tangent", 43, 2, 44, 2),
    Sketcher.Constraint("Tangent", 44, 1, 45, 1),
    Sketcher.Constraint("Coincident", 45, 2, 46, 1),
    Sketcher.Constraint("Tangent", 46, 2, 47, 2),
    Sketcher.Constraint("Tangent", 47, 1, 0, 1),
    Sketcher.Constraint("Horizontal", 4),
    Sketcher.Constraint("Vertical", 5),
    Sketcher.Constraint("Horizontal", 7),
    Sketcher.Constraint("Vertical", 9),
    Sketcher.Constraint("Horizontal", 10),
    Sketcher.Constraint("Vertical", 11),
    Sketcher.Constraint("Horizontal", 13),
    Sketcher.Constraint("Vertical", 15),
    Sketcher.Constraint("Horizontal", 16),
    Sketcher.Constraint("Vertical", 17),
    Sketcher.Constraint("Horizontal", 19),
    Sketcher.Constraint("Vertical", 21),
    Sketcher.Constraint("Horizontal", 22),
    Sketcher.Constraint("Vertical", 23),
    Sketcher.Constraint("Vertical", 25),
    Sketcher.Constraint("Horizontal", 27),
    Sketcher.Constraint("Vertical", 29),
    Sketcher.Constraint("Horizontal", 30),
    Sketcher.Constraint("Vertical", 31),
    Sketcher.Constraint("Horizontal", 33),
    Sketcher.Constraint("Vertical", 35),
    Sketcher.Constraint("Horizontal", 36),
    Sketcher.Constraint("Vertical", 37),
    Sketcher.Constraint("Horizontal", 39),
    Sketcher.Constraint("Vertical", 41),
    Sketcher.Constraint("Horizontal", 42),
    Sketcher.Constraint("Vertical", 43),
    Sketcher.Constraint("Horizontal", 45),
    Sketcher.Constraint("Equal", 2, 6),
    Sketcher.Constraint("Equal", 6, 8),
    Sketcher.Constraint("Equal", 8, 12),
    Sketcher.Constraint("Equal", 12, 14),
    Sketcher.Constraint("Equal", 14, 18),
    Sketcher.Constraint("Equal", 18, 20),
    Sketcher.Constraint("Equal", 20, 24),
    Sketcher.Constraint("Equal", 24, 26),
    Sketcher.Constraint("Equal", 26, 28),
    Sketcher.Constraint("Equal", 28, 32),
    Sketcher.Constraint("Equal", 32, 34),
    Sketcher.Constraint("Equal", 34, 38),
    Sketcher.Constraint("Equal", 38, 40),
    Sketcher.Constraint("Equal", 40, 44),
    Sketcher.Constraint("Equal", 44, 47),
    Sketcher.Constraint("Symmetric", 20, 3, 28, 3, -1),
    Sketcher.Constraint("Symmetric", 18, 3, 32, 3, -1),
    Sketcher.Constraint("Symmetric", 14, 3, 34, 3, -1),
    Sketcher.Constraint("Symmetric", 12, 3, 38, 3, -1),
    Sketcher.Constraint("Symmetric", 8, 3, 40, 3, -1),
    Sketcher.Constraint("Symmetric", 2, 3, 47, 3, -1),
    Sketcher.Constraint("Symmetric", 3, 2, 45, 2, -1),
    Sketcher.Constraint("PointOnObject", 24, 3, -1),
    Sketcher.Constraint("PointOnObject", 44, 3, -1),
    Sketcher.Constraint("PointOnObject", 0, 2, -1),
    Sketcher.Constraint("Parallel", 1, 3),
    Sketcher.Constraint("Horizontal", 2, 3, 6, 3),
    Sketcher.Constraint("Horizontal", 10, 2, 15, 2),
    Sketcher.Constraint("Horizontal", 16, 2, 21, 2),
    Sketcher.Constraint("Horizontal", 30, 2, 35, 2),
    Sketcher.Constraint("Horizontal", 36, 2, 41, 2),
    Sketcher.Constraint("Vertical", 6, 3, 44, 3),
    Sketcher.Constraint("Equal", 7, 13),
    Sketcher.Constraint("Equal", 10, 16),
    Sketcher.Constraint("Equal", 13, 19),
    Sketcher.Constraint("Equal", 16, 22),
    Sketcher.Constraint("Equal", 19, 27),
    Sketcher.Constraint("Equal", 5, 23),
    Sketcher.Constraint("Equal", 39, 25),
    Sketcher.Constraint("Equal", 21, 29),
    Sketcher.Constraint("DistanceX", 14, 3, -1, 1, Q("2 in")),
    Sketcher.Constraint("Angle", 0, Q("30 deg")),
    Sketcher.Constraint("Radius", 2, Q("0.0625 in")),
    Sketcher.Constraint("DistanceX", 7, 1, 7, 2, Q("0.25 in")),
    Sketcher.Constraint("DistanceX", 2, 3, -1, 1, Q("3.5 in")),
])
sketch4.setExpression("Constraints[118]", "Params.sketch4_radius")
sketch4.setExpression("Constraints[119]", "Params.sketch4_width")
pocket2 = body.newObject("PartDesign::Pocket", "Pocket001")
pocket2.Profile = sketch4
pocket2.setExpression("Length", "Params.pocket2_length")
pocket2.Reversed = True

sketch5 = body.newObject("Sketcher::SketchObject", "Sketch004")
sketch5.AttachmentSupport = (doc.getObject("XZ_Plane"), [""])
sketch5.MapMode = "FlatFace"
sketch5.AttachmentOffset = App.Placement(App.Vector(0, 0, -1.5), App.Rotation())
add_polygon(sketch5, [(-95.25, -12.7), (-95.25, 12.7), (57.15, 12.7), (57.15, -12.7)])
sketch5.addConstraint([
    Sketcher.Constraint("Vertical", 0),
    Sketcher.Constraint("Horizontal", 1),
    Sketcher.Constraint("Vertical", 2),
    Sketcher.Constraint("Horizontal", 3),
    Sketcher.Constraint("DistanceX", 1, 1, 1, 2, Q("6 in")),
    Sketcher.Constraint("DistanceY", 0, 1, 0, 2, Q("1 in")),
    Sketcher.Constraint("DistanceY", -1, 1, 0, 2, Q("0.5 in")),
    Sketcher.Constraint("DistanceX", 0, 2, -1, 1, Q("3.75 in")),
])
sketch5.setExpression("Constraints[8]", "Params.sketch5_width")
sketch5.setExpression("Constraints[9]", "Params.sketch5_height")
pad3 = body.newObject("PartDesign::Pad", "Pad002")
pad3.Profile = sketch5
pad3.setExpression("Length", "Params.pad3_length")
pad3.Reversed = True

sketch6 = body.newObject("Sketcher::SketchObject", "Sketch005")
sketch6.AttachmentSupport = (doc.getObject("XZ_Plane"), [""])
sketch6.MapMode = "FlatFace"
sketch6.AttachmentOffset = App.Placement(App.Vector(0, 0, -2.5), App.Rotation())
sketch6.addGeometry(Part.Circle(App.Vector(-88.9, -6.35, 0), App.Vector(0, 0, 1), 1.5875), False)
sketch6.addConstraint([
    Sketcher.Constraint("Diameter", 0, Q("0.125 in")),
    Sketcher.Constraint("DistanceX", 0, 3, -1, 1, Q("3.5 in")),
    Sketcher.Constraint("DistanceY", 0, 3, -1, 1, Q("0.25 in")),
])
sketch6.setExpression("Constraints[0]", "Params.sketch6_diameter")
pocket3 = body.newObject("PartDesign::Pocket", "Pocket002")
pocket3.Profile = sketch6
pocket3.Type = "UpToFirst"
pocket3.Reversed = True

sketch7 = body.newObject("Sketcher::SketchObject", "Sketch006")
sketch7.AttachmentSupport = (doc.getObject("XZ_Plane"), [""])
sketch7.MapMode = "FlatFace"
sketch7.AttachmentOffset = App.Placement(App.Vector(0, 0, -2.5), App.Rotation())
sketch7.addGeometry(Part.Circle(App.Vector(-88.9, 6.35, 0), App.Vector(0, 0, 1), 1.5875), False)
sketch7.addConstraint([
    Sketcher.Constraint("Diameter", 0, Q("0.125 in")),
    Sketcher.Constraint("DistanceX", 0, 3, -1, 1, Q("3.5 in")),
    Sketcher.Constraint("DistanceY", -1, 1, 0, 3, Q("0.25 in")),
])
sketch7.setExpression("Constraints[0]", "Params.sketch7_diameter")
pocket4 = body.newObject("PartDesign::Pocket", "Pocket003")
pocket4.Profile = sketch7
pocket4.Type = "UpToFirst"
pocket4.Reversed = True

sketch8 = body.newObject("Sketcher::SketchObject", "Sketch007")
sketch8.AttachmentSupport = (doc.getObject("XZ_Plane"), [""])
sketch8.MapMode = "FlatFace"
sketch8.AttachmentOffset = App.Placement(App.Vector(0, 0, -2.5), App.Rotation())
sketch8.addGeometry(Part.Circle(App.Vector(50.8, 0, 0), App.Vector(0, 0, 1), 1.5875), False)
sketch8.addConstraint([
    Sketcher.Constraint("PointOnObject", 0, 3, -1),
    Sketcher.Constraint("Diameter", 0, Q("0.125 in")),
    Sketcher.Constraint("DistanceX", -1, 1, 0, 3, Q("2 in")),
])
sketch8.setExpression("Constraints[1]", "Params.sketch8_diameter")
pocket5 = body.newObject("PartDesign::Pocket", "Pocket004")
pocket5.Profile = sketch8
pocket5.Type = "UpToFirst"
pocket5.Reversed = True

doc.recompute()
